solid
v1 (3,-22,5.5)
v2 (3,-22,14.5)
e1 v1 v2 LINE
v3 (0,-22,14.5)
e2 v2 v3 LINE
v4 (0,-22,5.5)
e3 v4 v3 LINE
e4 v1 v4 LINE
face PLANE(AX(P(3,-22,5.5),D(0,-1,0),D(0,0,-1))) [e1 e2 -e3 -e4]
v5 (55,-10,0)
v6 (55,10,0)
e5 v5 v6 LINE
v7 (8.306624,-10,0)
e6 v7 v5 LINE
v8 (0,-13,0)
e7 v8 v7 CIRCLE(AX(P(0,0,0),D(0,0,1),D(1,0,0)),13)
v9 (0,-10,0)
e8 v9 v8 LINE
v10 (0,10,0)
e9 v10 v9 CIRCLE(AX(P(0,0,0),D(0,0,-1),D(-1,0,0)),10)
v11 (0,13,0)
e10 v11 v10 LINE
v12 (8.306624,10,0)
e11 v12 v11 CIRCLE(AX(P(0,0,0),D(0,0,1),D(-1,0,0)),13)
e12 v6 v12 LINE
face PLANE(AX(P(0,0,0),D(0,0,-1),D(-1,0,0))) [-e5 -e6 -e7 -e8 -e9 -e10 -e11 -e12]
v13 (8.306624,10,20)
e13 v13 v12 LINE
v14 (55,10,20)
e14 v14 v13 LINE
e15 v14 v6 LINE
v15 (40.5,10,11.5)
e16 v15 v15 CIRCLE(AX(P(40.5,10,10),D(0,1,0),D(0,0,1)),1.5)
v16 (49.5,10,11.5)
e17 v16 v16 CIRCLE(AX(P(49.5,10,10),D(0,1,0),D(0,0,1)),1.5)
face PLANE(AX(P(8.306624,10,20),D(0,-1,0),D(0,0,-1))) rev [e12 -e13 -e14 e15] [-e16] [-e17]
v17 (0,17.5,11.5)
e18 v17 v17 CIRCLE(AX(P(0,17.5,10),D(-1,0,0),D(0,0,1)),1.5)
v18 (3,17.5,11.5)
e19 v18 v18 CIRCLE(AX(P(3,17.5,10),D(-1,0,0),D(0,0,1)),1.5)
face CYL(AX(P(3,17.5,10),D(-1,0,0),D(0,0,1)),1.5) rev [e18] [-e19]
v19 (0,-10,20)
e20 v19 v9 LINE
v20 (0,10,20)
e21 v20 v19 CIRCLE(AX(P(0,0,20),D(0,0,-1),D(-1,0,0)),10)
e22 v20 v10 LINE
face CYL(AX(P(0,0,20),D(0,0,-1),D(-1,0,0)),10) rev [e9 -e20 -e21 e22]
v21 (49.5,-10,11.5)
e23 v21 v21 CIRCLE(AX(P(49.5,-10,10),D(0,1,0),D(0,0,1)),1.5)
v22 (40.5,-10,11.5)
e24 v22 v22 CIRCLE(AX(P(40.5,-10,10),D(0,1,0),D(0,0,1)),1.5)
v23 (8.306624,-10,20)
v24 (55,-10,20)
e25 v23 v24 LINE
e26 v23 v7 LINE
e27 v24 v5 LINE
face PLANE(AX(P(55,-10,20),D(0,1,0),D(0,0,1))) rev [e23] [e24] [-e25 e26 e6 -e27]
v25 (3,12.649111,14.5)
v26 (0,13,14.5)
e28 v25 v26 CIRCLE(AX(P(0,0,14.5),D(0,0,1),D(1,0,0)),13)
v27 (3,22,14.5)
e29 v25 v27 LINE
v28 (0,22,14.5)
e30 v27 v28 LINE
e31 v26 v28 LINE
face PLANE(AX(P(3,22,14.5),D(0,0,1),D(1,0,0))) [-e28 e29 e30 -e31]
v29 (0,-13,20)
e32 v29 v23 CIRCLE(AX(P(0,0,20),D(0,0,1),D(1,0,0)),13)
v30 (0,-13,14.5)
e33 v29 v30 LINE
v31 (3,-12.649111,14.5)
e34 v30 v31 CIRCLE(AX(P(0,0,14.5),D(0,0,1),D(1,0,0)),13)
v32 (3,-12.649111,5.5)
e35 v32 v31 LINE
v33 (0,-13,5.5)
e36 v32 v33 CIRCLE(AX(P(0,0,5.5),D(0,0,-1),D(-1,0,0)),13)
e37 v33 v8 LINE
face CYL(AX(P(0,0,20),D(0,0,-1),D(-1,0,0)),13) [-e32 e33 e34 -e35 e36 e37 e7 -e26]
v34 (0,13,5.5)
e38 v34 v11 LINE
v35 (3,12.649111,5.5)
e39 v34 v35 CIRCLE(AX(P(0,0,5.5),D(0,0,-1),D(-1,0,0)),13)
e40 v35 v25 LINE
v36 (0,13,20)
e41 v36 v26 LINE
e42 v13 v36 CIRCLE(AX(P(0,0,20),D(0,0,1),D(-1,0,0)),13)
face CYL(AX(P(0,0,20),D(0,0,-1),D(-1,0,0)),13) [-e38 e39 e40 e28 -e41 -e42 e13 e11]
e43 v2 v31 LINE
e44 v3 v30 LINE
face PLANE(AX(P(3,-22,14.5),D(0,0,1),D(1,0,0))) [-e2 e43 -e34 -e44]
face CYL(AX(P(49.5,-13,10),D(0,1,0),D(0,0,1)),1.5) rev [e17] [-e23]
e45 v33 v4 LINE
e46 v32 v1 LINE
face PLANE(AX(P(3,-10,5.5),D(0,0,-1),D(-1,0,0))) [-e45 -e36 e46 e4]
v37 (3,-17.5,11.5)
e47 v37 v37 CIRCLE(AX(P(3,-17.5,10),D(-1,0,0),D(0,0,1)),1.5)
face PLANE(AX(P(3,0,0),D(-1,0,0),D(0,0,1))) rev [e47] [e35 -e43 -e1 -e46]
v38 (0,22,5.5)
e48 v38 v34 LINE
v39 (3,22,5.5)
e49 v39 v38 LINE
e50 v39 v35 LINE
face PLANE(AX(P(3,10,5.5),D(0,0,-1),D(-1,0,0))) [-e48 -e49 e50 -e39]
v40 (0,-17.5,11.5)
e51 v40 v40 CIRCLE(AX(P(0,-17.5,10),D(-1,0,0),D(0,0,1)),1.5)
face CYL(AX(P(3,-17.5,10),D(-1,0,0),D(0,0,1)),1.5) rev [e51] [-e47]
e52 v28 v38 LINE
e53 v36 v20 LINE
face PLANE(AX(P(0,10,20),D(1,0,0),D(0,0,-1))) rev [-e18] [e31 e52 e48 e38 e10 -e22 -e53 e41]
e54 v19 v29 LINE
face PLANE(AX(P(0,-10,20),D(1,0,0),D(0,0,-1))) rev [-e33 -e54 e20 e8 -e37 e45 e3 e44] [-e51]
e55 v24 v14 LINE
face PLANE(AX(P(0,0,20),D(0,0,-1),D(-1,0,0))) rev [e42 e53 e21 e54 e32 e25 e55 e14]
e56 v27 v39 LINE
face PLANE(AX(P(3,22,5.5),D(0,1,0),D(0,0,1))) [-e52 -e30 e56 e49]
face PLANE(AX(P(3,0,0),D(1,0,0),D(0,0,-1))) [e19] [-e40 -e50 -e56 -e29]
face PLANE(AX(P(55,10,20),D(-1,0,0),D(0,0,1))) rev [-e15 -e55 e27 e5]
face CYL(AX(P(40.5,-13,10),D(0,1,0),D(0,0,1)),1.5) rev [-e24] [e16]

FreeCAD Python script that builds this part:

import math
import FreeCAD as App
import Part
import Sketcher

doc = App.newDocument("Part")
params = doc.addObject("Spreadsheet::Sheet", "Params")
for row, (alias, value) in enumerate([
    ("sketch1_radius", "10 mm"),
    ("sketch1_radius2", "13 mm"),
    ("pad1_length", "20 mm"),
    ("sketch2_diameter", "3 mm"),
    ("sketch3_diameter", "3 mm"),
    ("sketch3_width", "12 mm"),
    ("sketch3_height", "9 mm"),
    ("pad2_length", "3 mm"),
], start=1):
    params.set(f"A{row}", alias)
    params.set(f"B{row}", "=" + value)
    params.setAlias(f"B{row}", alias)

body = doc.addObject("PartDesign::Body", "Body")

sketch1 = body.newObject("Sketcher::SketchObject", "Sketch")
sketch1.AttachmentSupport = (doc.getObject("XY_Plane"), [""])
sketch1.MapMode = "FlatFace"
sketch1.addGeometry(Part.LineSegment(App.Vector(0, 13, 0), App.Vector(0, 10, 0)), False)
sketch1.addGeometry(Part.ArcOfCircle(Part.Circle(App.Vector(0, 0, 0), App.Vector(0, 0, 1), 10), math.radians(-90), math.radians(90)), False)
sketch1.addGeometry(Part.LineSegment(App.Vector(0, -10, 0), App.Vector(0, -13, 0)), False)
sketch1.addGeometry(Part.ArcOfCircle(Part.Circle(App.Vector(0, 0, 0), App.Vector(0, 0, 1), 13), math.radians(-90), math.radians(-50)), False)
sketch1.addGeometry(Part.LineSegment(App.Vector(8.3, -10, 0), App.Vector(55, -10, 0)), False)
sketch1.addGeometry(Part.LineSegment(App.Vector(55, -10, 0), App.Vector(55, 10, 0)), False)
sketch1.addGeometry(Part.LineSegment(App.Vector(55, 10, 0), App.Vector(8.3, 10, 0)), False)
sketch1.addGeometry(Part.ArcOfCircle(Part.Circle(App.Vector(0, 0, 0), App.Vector(0, 0, 1), 13), math.radians(50), math.radians(90)), False)
sketch1.addConstraint(Sketcher.Constraint("Coincident", 0, 2, 1, 2))
sketch1.addConstraint(Sketcher.Constraint("Coincident", 1, 1, 2, 1))
sketch1.addConstraint(Sketcher.Constraint("Coincident", 2, 2, 3, 1))
sketch1.addConstraint(Sketcher.Constraint("Coincident", 3, 2, 4, 1))
sketch1.addConstraint(Sketcher.Constraint("Coincident", 4, 2, 5, 1))
sketch1.addConstraint(Sketcher.Constraint("Coincident", 5, 2, 6, 1))
sketch1.addConstraint(Sketcher.Constraint("Coincident", 6, 2, 7, 1))
sketch1.addConstraint(Sketcher.Constraint("Coincident", 7, 2, 0, 1))
sketch1.addConstraint(Sketcher.Constraint("Vertical", 0))
sketch1.addConstraint(Sketcher.Constraint("Vertical", 2))
sketch1.addConstraint(Sketcher.Constraint("Horizontal", 4))
sketch1.addConstraint(Sketcher.Constraint("Vertical", 5))
sketch1.addConstraint(Sketcher.Constraint("Horizontal", 6))
sketch1.addConstraint(Sketcher.Constraint("Coincident", 1, 3, -1, 1))
sketch1.addConstraint(Sketcher.Constraint("Coincident", 3, 3, -1, 1))
sketch1.addConstraint(Sketcher.Constraint("Coincident", 7, 3, -1, 1))
sketch1.addConstraint(Sketcher.Constraint("Equal", 3, 7))
sketch1.addConstraint(Sketcher.Constraint("PointOnObject", 0, 2, -2))
sketch1.addConstraint(Sketcher.Constraint("PointOnObject", 1, 1, -2))
sketch1.addConstraint(Sketcher.Constraint("Horizontal", 1, 1, 3, 2))
sketch1.addConstraint(Sketcher.Constraint("Horizontal", 0, 2, 5, 2))
sketch1.addConstraint(Sketcher.Constraint("Radius", 1, 10.0))
sketch1.addConstraint(Sketcher.Constraint("Radius", 3, 13.0))
sketch1.addConstraint(Sketcher.Constraint("DistanceX", -1, 1, 4, 2, 55.0))
sketch1.setExpression("Constraints[21]", "Params.sketch1_radius")
sketch1.setExpression("Constraints[22]", "Params.sketch1_radius2")
pad1 = body.newObject("PartDesign::Pad", "Pad")
pad1.Profile = sketch1
pad1.setExpression("Length", "Params.pad1_length")

sketch2 = body.newObject("Sketcher::SketchObject", "Sketch001")
sketch2.AttachmentSupport = (doc.getObject("XZ_Plane"), [""])
sketch2.MapMode = "FlatFace"
sketch2.AttachmentOffset = App.Placement(App.Vector(0, 0, -10), App.Rotation())
sketch2.addGeometry(Part.Circle(App.Vector(40.5, 10, 0), App.Vector(0, 0, 1), 1.5), False)
sketch2.addGeometry(Part.Circle(App.Vector(49.5, 10, 0), App.Vector(0, 0, 1), 1.5), False)
sketch2.addConstraint(Sketcher.Constraint("Equal", 0, 1))
sketch2.addConstraint(Sketcher.Constraint("Horizontal", 0, 3, 1, 3))
sketch2.addConstraint(Sketcher.Constraint("Diameter", 0, 3.0))
sketch2.addConstraint(Sketcher.Constraint("DistanceY", -1, 1, 0, 3, 10.0))
sketch2.addConstraint(Sketcher.Constraint("DistanceX", 0, 3, 1, 3, 9.0))
sketch2.addConstraint(Sketcher.Constraint("DistanceX", -1, 1, 0, 3, 40.5))
sketch2.setExpression("Constraints[2]", "Params.sketch2_diameter")
pocket1 = body.newObject("PartDesign::Pocket", "Pocket")
pocket1.Profile = sketch2
pocket1.Type = "ThroughAll"
pocket1.Reversed = True

sketch3 = body.newObject("Sketcher::SketchObject", "Sketch002")
sketch3.AttachmentSupport = (doc.getObject("YZ_Plane"), [""])
sketch3.MapMode = "FlatFace"
sketch3.addGeometry(Part.LineSegment(App.Vector(10, 5.5, 0), App.Vector(10, 14.5, 0)), False)
sketch3.addGeometry(Part.LineSegment(App.Vector(10, 14.5, 0), App.Vector(22, 14.5, 0)), False)
sketch3.addGeometry(Part.LineSegment(App.Vector(22, 14.5, 0), App.Vector(22, 5.5, 0)), False)
sketch3.addGeometry(Part.LineSegment(App.Vector(22, 5.5, 0), App.Vector(10, 5.5, 0)), False)
sketch3.addGeometry(Part.Circle(App.Vector(17.5, 10, 0), App.Vector(0, 0, 1), 1.5), False)
sketch3.addGeometry(Part.LineSegment(App.Vector(-10, 5.5, 0), App.Vector(-22, 5.5, 0)), False)
sketch3.addGeometry(Part.LineSegment(App.Vector(-22, 5.5, 0), App.Vector(-22, 14.5, 0)), False)
sketch3.addGeometry(Part.LineSegment(App.Vector(-22, 14.5, 0), App.Vector(-10, 14.5, 0)), False)
sketch3.addGeometry(Part.LineSegment(App.Vector(-10, 14.5, 0), App.Vector(-10, 5.5, 0)), False)
sketch3.addGeometry(Part.Circle(App.Vector(-17.5, 10, 0), App.Vector(0, 0, 1), 1.5), False)
sketch3.addConstraint(Sketcher.Constraint("Coincident", 0, 2, 1, 1))
sketch3.addConstraint(Sketcher.Constraint("Coincident", 1, 2, 2, 1))
sketch3.addConstraint(Sketcher.Constraint("Coincident", 2, 2, 3, 1))
sketch3.addConstraint(Sketcher.Constraint("Coincident", 3, 2, 0, 1))
sketch3.addConstraint(Sketcher.Constraint("Coincident", 5, 2, 6, 1))
sketch3.addConstraint(Sketcher.Constraint("Coincident", 6, 2, 7, 1))
sketch3.addConstraint(Sketcher.Constraint("Coincident", 7, 2, 8, 1))
sketch3.addConstraint(Sketcher.Constraint("Coincident", 8, 2, 5, 1))
sketch3.addConstraint(Sketcher.Constraint("Vertical", 0))
sketch3.addConstraint(Sketcher.Constraint("Horizontal", 1))
sketch3.addConstraint(Sketcher.Constraint("Vertical", 2))
sketch3.addConstraint(Sketcher.Constraint("Horizontal", 3))
sketch3.addConstraint(Sketcher.Constraint("Horizontal", 5))
sketch3.addConstraint(Sketcher.Constraint("Vertical", 6))
sketch3.addConstraint(Sketcher.Constraint("Horizontal", 7))
sketch3.addConstraint(Sketcher.Constraint("Vertical", 8))
sketch3.addConstraint(Sketcher.Constraint("Equal", 4, 9))
sketch3.addConstraint(Sketcher.Constraint("Symmetric", 4, 3, 9, 3, -2))
sketch3.addConstraint(Sketcher.Constraint("Symmetric", 2, 2, 5, 2, -2))
sketch3.addConstraint(Sketcher.Constraint("Symmetric", 0, 2, 7, 2, -2))
sketch3.addConstraint(Sketcher.Constraint("Diameter", 4, 3.0))
sketch3.addConstraint(Sketcher.Constraint("DistanceX", 1, 1, 1, 2, 12.0))
sketch3.addConstraint(Sketcher.Constraint("DistanceY", 0, 1, 0, 2, 9.0))
sketch3.addConstraint(Sketcher.Constraint("DistanceY", -1, 1, 4, 3, 10.0))
sketch3.addConstraint(Sketcher.Constraint("DistanceX", -1, 1, 0, 2, 10.0))
sketch3.addConstraint(Sketcher.Constraint("DistanceX", 9, 3, 4, 3, 35.0))
sketch3.addConstraint(Sketcher.Constraint("DistanceY", -1, 1, 0, 2, 14.5))
sketch3.setExpression("Constraints[20]", "Params.sketch3_diameter")
sketch3.setExpression("Constraints[21]", "Params.sketch3_width")
sketch3.setExpression("Constraints[22]", "Params.sketch3_height")
pad2 = body.newObject("PartDesign::Pad", "Pad001")
pad2.Profile = sketch3
pad2.setExpression("Length", "Params.pad2_length")

doc.recompute()
